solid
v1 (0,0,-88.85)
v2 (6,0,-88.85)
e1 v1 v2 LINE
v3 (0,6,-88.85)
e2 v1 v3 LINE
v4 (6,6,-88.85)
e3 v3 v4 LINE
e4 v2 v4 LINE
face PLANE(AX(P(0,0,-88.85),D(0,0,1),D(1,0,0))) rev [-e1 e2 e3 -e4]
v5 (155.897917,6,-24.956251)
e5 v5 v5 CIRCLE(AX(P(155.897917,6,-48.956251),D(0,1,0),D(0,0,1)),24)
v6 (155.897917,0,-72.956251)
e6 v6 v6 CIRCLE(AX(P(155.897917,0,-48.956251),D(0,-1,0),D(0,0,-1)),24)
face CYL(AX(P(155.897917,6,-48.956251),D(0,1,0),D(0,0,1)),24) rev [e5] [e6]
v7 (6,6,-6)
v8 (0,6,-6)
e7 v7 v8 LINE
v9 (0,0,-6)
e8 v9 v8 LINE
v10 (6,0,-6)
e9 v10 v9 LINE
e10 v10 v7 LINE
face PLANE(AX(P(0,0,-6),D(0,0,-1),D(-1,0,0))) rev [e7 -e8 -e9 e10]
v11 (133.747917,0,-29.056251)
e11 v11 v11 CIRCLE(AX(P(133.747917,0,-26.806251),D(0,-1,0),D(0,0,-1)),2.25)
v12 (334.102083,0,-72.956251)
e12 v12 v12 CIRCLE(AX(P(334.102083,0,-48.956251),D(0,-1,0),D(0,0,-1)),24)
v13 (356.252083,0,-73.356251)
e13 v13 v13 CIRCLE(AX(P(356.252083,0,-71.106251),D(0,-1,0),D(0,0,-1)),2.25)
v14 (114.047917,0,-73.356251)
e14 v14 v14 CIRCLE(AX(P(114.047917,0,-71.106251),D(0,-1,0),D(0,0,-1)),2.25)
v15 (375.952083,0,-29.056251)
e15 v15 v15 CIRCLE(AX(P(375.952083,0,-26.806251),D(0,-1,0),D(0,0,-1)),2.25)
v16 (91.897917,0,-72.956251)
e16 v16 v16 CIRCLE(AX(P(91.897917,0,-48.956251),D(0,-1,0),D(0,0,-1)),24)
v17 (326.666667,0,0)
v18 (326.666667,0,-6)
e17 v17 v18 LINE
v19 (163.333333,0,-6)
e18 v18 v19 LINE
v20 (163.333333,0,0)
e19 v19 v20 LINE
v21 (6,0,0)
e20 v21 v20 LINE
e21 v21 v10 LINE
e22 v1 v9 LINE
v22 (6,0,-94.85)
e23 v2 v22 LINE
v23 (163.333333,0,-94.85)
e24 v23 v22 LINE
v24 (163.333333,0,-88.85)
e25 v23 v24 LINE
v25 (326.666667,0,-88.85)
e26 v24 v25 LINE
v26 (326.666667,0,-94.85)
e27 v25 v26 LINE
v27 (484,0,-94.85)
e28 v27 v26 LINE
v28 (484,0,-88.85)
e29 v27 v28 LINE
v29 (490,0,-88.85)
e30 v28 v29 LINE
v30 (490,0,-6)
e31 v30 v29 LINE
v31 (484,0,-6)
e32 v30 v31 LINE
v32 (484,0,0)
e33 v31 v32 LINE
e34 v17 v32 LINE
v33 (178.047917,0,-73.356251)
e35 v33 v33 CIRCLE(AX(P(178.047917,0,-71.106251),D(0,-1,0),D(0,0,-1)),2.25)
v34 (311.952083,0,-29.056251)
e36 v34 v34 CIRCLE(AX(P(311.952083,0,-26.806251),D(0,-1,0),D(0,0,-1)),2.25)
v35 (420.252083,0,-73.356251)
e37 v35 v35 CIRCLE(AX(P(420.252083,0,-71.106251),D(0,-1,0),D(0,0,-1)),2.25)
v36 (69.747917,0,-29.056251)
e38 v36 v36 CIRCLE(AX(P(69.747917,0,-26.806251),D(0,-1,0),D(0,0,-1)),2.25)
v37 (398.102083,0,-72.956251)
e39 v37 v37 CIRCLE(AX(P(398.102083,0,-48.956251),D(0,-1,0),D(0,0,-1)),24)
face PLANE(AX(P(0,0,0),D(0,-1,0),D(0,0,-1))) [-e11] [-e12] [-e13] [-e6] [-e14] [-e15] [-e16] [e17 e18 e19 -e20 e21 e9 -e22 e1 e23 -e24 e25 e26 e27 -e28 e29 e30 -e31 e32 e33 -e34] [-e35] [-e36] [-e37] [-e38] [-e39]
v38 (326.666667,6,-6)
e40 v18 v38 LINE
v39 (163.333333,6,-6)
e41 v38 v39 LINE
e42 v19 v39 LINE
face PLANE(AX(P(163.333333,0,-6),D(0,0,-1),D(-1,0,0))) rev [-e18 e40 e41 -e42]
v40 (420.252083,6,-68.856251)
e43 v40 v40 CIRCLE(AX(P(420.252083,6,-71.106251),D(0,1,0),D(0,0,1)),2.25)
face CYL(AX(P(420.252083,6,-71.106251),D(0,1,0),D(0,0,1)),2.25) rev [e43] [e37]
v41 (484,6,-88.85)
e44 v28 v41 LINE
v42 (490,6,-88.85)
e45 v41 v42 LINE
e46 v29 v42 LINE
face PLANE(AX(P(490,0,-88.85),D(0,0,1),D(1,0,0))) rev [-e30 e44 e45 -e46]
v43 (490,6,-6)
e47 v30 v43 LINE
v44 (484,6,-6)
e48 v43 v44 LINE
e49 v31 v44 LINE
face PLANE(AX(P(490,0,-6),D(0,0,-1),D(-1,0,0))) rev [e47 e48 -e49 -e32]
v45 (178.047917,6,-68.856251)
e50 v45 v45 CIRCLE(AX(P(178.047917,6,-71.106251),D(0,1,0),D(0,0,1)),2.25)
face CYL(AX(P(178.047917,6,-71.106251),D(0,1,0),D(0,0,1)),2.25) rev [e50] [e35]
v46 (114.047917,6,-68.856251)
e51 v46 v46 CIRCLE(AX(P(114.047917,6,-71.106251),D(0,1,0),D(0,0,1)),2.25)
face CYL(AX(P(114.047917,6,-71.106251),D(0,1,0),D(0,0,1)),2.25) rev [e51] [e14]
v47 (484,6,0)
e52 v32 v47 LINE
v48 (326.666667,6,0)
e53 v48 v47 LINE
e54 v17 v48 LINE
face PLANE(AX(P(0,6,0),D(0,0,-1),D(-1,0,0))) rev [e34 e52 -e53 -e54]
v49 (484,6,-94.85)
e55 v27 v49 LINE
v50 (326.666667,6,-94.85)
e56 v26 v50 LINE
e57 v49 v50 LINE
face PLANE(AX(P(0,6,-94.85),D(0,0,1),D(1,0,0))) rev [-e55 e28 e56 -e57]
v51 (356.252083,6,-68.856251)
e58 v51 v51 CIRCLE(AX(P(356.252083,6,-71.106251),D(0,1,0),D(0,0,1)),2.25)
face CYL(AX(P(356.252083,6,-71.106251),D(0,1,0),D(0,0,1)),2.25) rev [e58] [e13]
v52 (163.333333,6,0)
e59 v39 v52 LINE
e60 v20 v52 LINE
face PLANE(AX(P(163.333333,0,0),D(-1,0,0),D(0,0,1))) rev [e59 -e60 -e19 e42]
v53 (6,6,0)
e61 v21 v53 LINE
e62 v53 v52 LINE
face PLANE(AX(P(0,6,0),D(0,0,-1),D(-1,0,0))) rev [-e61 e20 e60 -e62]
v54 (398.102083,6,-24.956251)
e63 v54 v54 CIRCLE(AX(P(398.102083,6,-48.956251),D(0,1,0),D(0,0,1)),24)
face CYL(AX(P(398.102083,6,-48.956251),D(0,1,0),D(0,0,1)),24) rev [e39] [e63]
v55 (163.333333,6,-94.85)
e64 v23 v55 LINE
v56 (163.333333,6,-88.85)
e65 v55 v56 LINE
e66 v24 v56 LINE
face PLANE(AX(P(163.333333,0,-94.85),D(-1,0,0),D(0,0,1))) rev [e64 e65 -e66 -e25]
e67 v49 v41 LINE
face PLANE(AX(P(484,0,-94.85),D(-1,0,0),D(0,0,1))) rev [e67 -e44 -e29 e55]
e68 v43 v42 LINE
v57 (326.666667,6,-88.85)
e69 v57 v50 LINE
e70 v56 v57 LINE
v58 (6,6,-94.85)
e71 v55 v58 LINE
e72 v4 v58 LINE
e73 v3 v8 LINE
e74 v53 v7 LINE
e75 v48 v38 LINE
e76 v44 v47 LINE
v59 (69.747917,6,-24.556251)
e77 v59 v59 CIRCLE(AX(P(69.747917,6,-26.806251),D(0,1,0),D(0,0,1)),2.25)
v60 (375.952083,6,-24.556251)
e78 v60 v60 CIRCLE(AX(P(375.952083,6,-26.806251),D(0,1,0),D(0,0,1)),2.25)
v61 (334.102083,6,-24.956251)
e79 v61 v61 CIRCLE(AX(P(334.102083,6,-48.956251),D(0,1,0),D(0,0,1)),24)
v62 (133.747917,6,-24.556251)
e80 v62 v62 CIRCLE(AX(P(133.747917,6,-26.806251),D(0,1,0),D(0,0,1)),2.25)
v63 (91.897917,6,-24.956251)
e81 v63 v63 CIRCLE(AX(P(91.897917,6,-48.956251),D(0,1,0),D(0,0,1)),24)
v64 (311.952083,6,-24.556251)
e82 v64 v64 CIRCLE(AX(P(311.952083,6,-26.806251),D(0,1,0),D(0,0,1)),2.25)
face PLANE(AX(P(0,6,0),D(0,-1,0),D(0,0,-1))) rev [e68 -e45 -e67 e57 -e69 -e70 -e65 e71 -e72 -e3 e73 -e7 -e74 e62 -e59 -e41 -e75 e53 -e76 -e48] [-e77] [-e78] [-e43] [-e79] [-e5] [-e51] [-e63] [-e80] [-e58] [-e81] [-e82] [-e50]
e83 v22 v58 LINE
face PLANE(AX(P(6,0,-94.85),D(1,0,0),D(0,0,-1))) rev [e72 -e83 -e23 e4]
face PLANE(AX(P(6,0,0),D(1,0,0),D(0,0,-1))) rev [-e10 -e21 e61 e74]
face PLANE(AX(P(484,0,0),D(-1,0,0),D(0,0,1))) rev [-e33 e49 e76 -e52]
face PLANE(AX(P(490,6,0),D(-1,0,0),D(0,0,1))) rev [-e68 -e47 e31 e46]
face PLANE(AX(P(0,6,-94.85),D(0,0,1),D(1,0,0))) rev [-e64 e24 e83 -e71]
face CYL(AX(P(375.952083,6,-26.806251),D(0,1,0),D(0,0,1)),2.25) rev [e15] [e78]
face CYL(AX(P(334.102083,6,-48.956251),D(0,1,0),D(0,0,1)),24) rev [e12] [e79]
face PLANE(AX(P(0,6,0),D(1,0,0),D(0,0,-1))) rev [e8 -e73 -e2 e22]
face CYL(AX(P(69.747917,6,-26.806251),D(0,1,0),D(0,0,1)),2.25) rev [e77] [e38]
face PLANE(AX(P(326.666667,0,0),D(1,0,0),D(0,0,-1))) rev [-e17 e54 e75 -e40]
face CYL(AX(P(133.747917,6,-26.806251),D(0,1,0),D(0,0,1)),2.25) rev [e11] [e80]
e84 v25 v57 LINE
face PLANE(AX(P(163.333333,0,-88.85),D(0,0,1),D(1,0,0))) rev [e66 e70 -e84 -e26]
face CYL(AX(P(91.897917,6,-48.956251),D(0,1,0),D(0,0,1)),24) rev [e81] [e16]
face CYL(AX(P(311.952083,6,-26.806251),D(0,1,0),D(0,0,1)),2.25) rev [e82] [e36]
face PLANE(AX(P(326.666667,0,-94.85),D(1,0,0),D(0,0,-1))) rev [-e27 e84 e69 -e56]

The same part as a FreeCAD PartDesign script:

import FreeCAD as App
import Part
import Sketcher
Q = App.Units.Quantity


def add_polygon(sketch, points):
    """Adds a closed chain of lines whose ends are joined by coincident constraints."""
    first, n = sketch.GeometryCount, len(points)
    for a, b in zip(points, points[1:] + points[:1]):
        sketch.addGeometry(Part.LineSegment(App.Vector(*a, 0), App.Vector(*b, 0)), False)
    for i in range(n):
        sketch.addConstraint(Sketcher.Constraint("Coincident", first + i, 2, first + (i + 1) % n, 1))

doc = App.newDocument("Part")
body = doc.addObject("PartDesign::Body", "Body")

# Sketch on XZ plane
sketch1 = body.newObject("Sketcher::SketchObject", "Sketch")
sketch1.AttachmentSupport = (doc.getObject("XZ_Plane"), [""])
sketch1.MapMode = "FlatFace"
add_polygon(sketch1, [(0, -94.85), (0, 0), (490, 0), (490, -94.85)])  # lines 0-3
sketch1.addConstraint(Sketcher.Constraint("Vertical", 0))
sketch1.addConstraint(Sketcher.Constraint("Horizontal", 1))
sketch1.addConstraint(Sketcher.Constraint("Vertical", 2))
sketch1.addConstraint(Sketcher.Constraint("Horizontal", 3))
sketch1.addConstraint(Sketcher.Constraint("Coincident", 0, 2, -1, 1))
sketch1.addConstraint(Sketcher.Constraint("DistanceX", 1, 1, 1, 2, Q("490 mm")))
sketch1.addConstraint(Sketcher.Constraint("DistanceY", 0, 1, 0, 2, Q("94.85 mm")))
pad1 = body.newObject("PartDesign::Pad", "Pad")
pad1.Profile = sketch1
pad1.Length = 6
pad1.Reversed = True

# Sketch on XZ plane
sketch2 = body.newObject("Sketcher::SketchObject", "Sketch001")
sketch2.AttachmentSupport = (doc.getObject("XZ_Plane"), [""])
sketch2.MapMode = "FlatFace"
sketch2.AttachmentOffset = App.Placement(App.Vector(0, 0, -6), App.Rotation())
add_polygon(sketch2, [(484, -6), (484, 0), (490, 0), (490, -6)])  # lines 0-3
add_polygon(sketch2, [(484, -94.85), (484, -88.85), (490, -88.85), (490, -94.85)])  # lines 4-7
add_polygon(sketch2, [(0, -94.85), (0, -88.85), (6, -88.85), (6, -94.85)])  # lines 8-11
add_polygon(sketch2, [(0, -6), (0, 0), (6, 0), (6, -6)])  # lines 12-15
sketch2.addConstraint(Sketcher.Constraint("Vertical", 0))
sketch2.addConstraint(Sketcher.Constraint("Horizontal", 1))
sketch2.addConstraint(Sketcher.Constraint("Vertical", 2))
sketch2.addConstraint(Sketcher.Constraint("Horizontal", 3))
sketch2.addConstraint(Sketcher.Constraint("Vertical", 4))
sketch2.addConstraint(Sketcher.Constraint("Horizontal", 5))
sketch2.addConstraint(Sketcher.Constraint("Vertical", 6))
sketch2.addConstraint(Sketcher.Constraint("Horizontal", 7))
sketch2.addConstraint(Sketcher.Constraint("Vertical", 8))
sketch2.addConstraint(Sketcher.Constraint("Horizontal", 9))
sketch2.addConstraint(Sketcher.Constraint("Vertical", 10))
sketch2.addConstraint(Sketcher.Constraint("Horizontal", 11))
sketch2.addConstraint(Sketcher.Constraint("Vertical", 12))
sketch2.addConstraint(Sketcher.Constraint("Horizontal", 13))
sketch2.addConstraint(Sketcher.Constraint("Vertical", 14))
sketch2.addConstraint(Sketcher.Constraint("Horizontal", 15))
sketch2.addConstraint(Sketcher.Constraint("Coincident", 12, 2, -1, 1))
sketch2.addConstraint(Sketcher.Constraint("PointOnObject", 0, 2, -1))
sketch2.addConstraint(Sketcher.Constraint("PointOnObject", 8, 2, -2))
sketch2.addConstraint(Sketcher.Constraint("Horizontal", 5, 2, 8, 2))
sketch2.addConstraint(Sketcher.Constraint("Horizontal", 7, 2, 10, 2))
sketch2.addConstraint(Sketcher.Constraint("Horizontal", 3, 2, 14, 2))
sketch2.addConstraint(Sketcher.Constraint("Vertical", 3, 2, 4, 2))
sketch2.addConstraint(Sketcher.Constraint("Vertical", 2, 2, 5, 2))
sketch2.addConstraint(Sketcher.Constraint("Vertical", 10, 2, 13, 2))
sketch2.addConstraint(Sketcher.Constraint("Equal", 7, 9))
sketch2.addConstraint(Sketcher.Constraint("Equal", 15, 0))
sketch2.addConstraint(Sketcher.Constraint("Equal", 2, 4))
sketch2.addConstraint(Sketcher.Constraint("DistanceX", 1, 1, 1, 2, Q("6 mm")))
sketch2.addConstraint(Sketcher.Constraint("DistanceX", -1, 1, 0, 2, Q("484 mm")))
sketch2.addConstraint(Sketcher.Constraint("DistanceY", 4, 2, -1, 1, Q("88.85 mm")))
pocket1 = body.newObject("PartDesign::Pocket", "Pocket")
pocket1.Profile = sketch2
pocket1.Type = "ThroughAll"
pocket1.Reversed = True

# Sketch on XZ plane
sketch3 = body.newObject("Sketcher::SketchObject", "Sketch002")
sketch3.AttachmentSupport = (doc.getObject("XZ_Plane"), [""])
sketch3.MapMode = "FlatFace"
sketch3.AttachmentOffset = App.Placement(App.Vector(0, 0, -6), App.Rotation())
add_polygon(sketch3, [(163.333333, -94.85), (163.333333, -88.85), (326.666667, -88.85), (326.666667, -94.85)])  # lines 0-3
add_polygon(sketch3, [(163.333333, -6), (163.333333, 0), (326.666667, 0), (326.666667, -6)])  # lines 4-7
sketch3.addConstraint(Sketcher.Constraint("Vertical", 0))
sketch3.addConstraint(Sketcher.Constraint("Horizontal", 1))
sketch3.addConstraint(Sketcher.Constraint("Vertical", 2))
sketch3.addConstraint(Sketcher.Constraint("Horizontal", 3))
sketch3.addConstraint(Sketcher.Constraint("Vertical", 4))
sketch3.addConstraint(Sketcher.Constraint("Horizontal", 5))
sketch3.addConstraint(Sketcher.Constraint("Vertical", 6))
sketch3.addConstraint(Sketcher.Constraint("Horizontal", 7))
sketch3.addConstraint(Sketcher.Constraint("PointOnObject", 4, 2, -1))
sketch3.addConstraint(Sketcher.Constraint("Vertical", 3, 2, 4, 2))
sketch3.addConstraint(Sketcher.Constraint("Vertical", 2, 2, 5, 2))
sketch3.addConstraint(Sketcher.Constraint("Equal", 2, 4))
sketch3.addConstraint(Sketcher.Constraint("DistanceY", 0, 1, 0, 2, Q("6 mm")))
sketch3.addConstraint(Sketcher.Constraint("DistanceY", 0, 2, -1, 1, Q("88.85 mm")))
sketch3.addConstraint(Sketcher.Constraint("DistanceX", 1, 1, 1, 2, Q("163.333333 mm")))
sketch3.addConstraint(Sketcher.Constraint("DistanceX", -1, 1, 0, 2, Q("163.333333 mm")))
pocket2 = body.newObject("PartDesign::Pocket", "Pocket001")
pocket2.Profile = sketch3
pocket2.Type = "ThroughAll"
pocket2.Reversed = True

# Sketch on XZ plane
sketch4 = body.newObject("Sketcher::SketchObject", "Sketch003")
sketch4.AttachmentSupport = (doc.getObject("XZ_Plane"), [""])
sketch4.MapMode = "FlatFace"
sketch4.AttachmentOffset = App.Placement(App.Vector(0, 0, -6), App.Rotation())
sketch4.addGeometry(Part.Circle(App.Vector(375.952083, -26.806251, 0), App.Vector(0, 0, 1), 2.25), False)
sketch4.addGeometry(Part.Circle(App.Vector(420.252083, -71.106251, 0), App.Vector(0, 0, 1), 2.25), False)
sketch4.addGeometry(Part.Circle(App.Vector(356.252083, -71.106251, 0), App.Vector(0, 0, 1), 2.25), False)
sketch4.addGeometry(Part.Circle(App.Vector(311.952083, -26.806251, 0), App.Vector(0, 0, 1), 2.25), False)
sketch4.addGeometry(Part.Circle(App.Vector(178.047917, -71.106251, 0), App.Vector(0, 0, 1), 2.25), False)
sketch4.addGeometry(Part.Circle(App.Vector(133.747917, -26.806251, 0), App.Vector(0, 0, 1), 2.25), False)
sketch4.addGeometry(Part.Circle(App.Vector(114.047917, -71.106251, 0), App.Vector(0, 0, 1), 2.25), False)
sketch4.addGeometry(Part.Circle(App.Vector(69.747917, -26.806251, 0), App.Vector(0, 0, 1), 2.25), False)
sketch4.addConstraint(Sketcher.Constraint("Equal", 0, 1))
sketch4.addConstraint(Sketcher.Constraint("Equal", 1, 2))
sketch4.addConstraint(Sketcher.Constraint("Equal", 2, 3))
sketch4.addConstraint(Sketcher.Constraint("Equal", 3, 4))
sketch4.addConstraint(Sketcher.Constraint("Equal", 4, 5))
sketch4.addConstraint(Sketcher.Constraint("Equal", 5, 6))
sketch4.addConstraint(Sketcher.Constraint("Equal", 6, 7))
sketch4.addConstraint(Sketcher.Constraint("Horizontal", 1, 3, 2, 3))
sketch4.addConstraint(Sketcher.Constraint("Horizontal", 0, 3, 3, 3))
sketch4.addConstraint(Sketcher.Constraint("Horizontal", 2, 3, 4, 3))
sketch4.addConstraint(Sketcher.Constraint("Horizontal", 3, 3, 5, 3))
sketch4.addConstraint(Sketcher.Constraint("Horizontal", 4, 3, 6, 3))
sketch4.addConstraint(Sketcher.Constraint("Horizontal", 5, 3, 7, 3))
sketch4.addConstraint(Sketcher.Constraint("Diameter", 0, Q("4.5 mm")))
sketch4.addConstraint(Sketcher.Constraint("DistanceX", 2, 3, 1, 3, Q("64 mm")))
sketch4.addConstraint(Sketcher.Constraint("DistanceX", 3, 3, 0, 3, Q("64 mm")))
sketch4.addConstraint(Sketcher.Constraint("DistanceX", 6, 3, 4, 3, Q("64 mm")))
sketch4.addConstraint(Sketcher.Constraint("DistanceX", 7, 3, 5, 3, Q("64 mm")))
sketch4.addConstraint(Sketcher.Constraint("DistanceX", 0, 3, 1, 3, Q("44.3 mm")))
sketch4.addConstraint(Sketcher.Constraint("DistanceY", 1, 3, 0, 3, Q("44.3 mm")))
sketch4.addConstraint(Sketcher.Constraint("DistanceX", 5, 3, 4, 3, Q("44.3 mm")))
sketch4.addConstraint(Sketcher.Constraint("DistanceY", 0, 3, -1, 1, Q("26.806251 mm")))
sketch4.addConstraint(Sketcher.Constraint("DistanceX", -1, 1, 0, 3, Q("375.952083 mm")))
sketch4.addConstraint(Sketcher.Constraint("DistanceX", -1, 1, 4, 3, Q("178.047917 mm")))
doc.recompute()
hole = body.newObject("PartDesign::Hole", "Hole")
hole.Profile = sketch4
hole.ThreadType = "None"
hole.Diameter = 4.5
hole.DepthType = "Dimension"
hole.Depth = 18
hole.DrillPoint = "Angled"
hole.DrillPointAngle = 118
hole.Reversed = True

# Sketch on XZ plane
sketch5 = body.newObject("Sketcher::SketchObject", "Sketch004")
sketch5.AttachmentSupport = (doc.getObject("XZ_Plane"), [""])
sketch5.MapMode = "FlatFace"
sketch5.AttachmentOffset = App.Placement(App.Vector(0, 0, -6), App.Rotation())
sketch5.addGeometry(Part.Circle(App.Vector(91.897917, -48.956251, 0), App.Vector(0, 0, 1), 24), False)
sketch5.addGeometry(Part.Circle(App.Vector(155.897917, -48.956251, 0), App.Vector(0, 0, 1), 24), False)
sketch5.addGeometry(Part.Circle(App.Vector(334.102083, -48.956251, 0), App.Vector(0, 0, 1), 24), False)
sketch5.addGeometry(Part.Circle(App.Vector(398.102083, -48.956251, 0), App.Vector(0, 0, 1), 24), False)
sketch5.addConstraint(Sketcher.Constraint("Equal", 0, 1))
sketch5.addConstraint(Sketcher.Constraint("Equal", 1, 2))
sketch5.addConstraint(Sketcher.Constraint("Equal", 2, 3))
sketch5.addConstraint(Sketcher.Constraint("Horizontal", 0, 3, 1, 3))
sketch5.addConstraint(Sketcher.Constraint("Horizontal", 1, 3, 2, 3))
sketch5.addConstraint(Sketcher.Constraint("Horizontal", 2, 3, 3, 3))
sketch5.addConstraint(Sketcher.Constraint("Diameter", 0, Q("48 mm")))
sketch5.addConstraint(Sketcher.Constraint("DistanceX", 0, 3, 1, 3, Q("64 mm")))
sketch5.addConstraint(Sketcher.Constraint("DistanceX", 2, 3, 3, 3, Q("64 mm")))
sketch5.addConstraint(Sketcher.Constraint("DistanceY", 0, 3, -1, 1, Q("48.956251 mm")))
sketch5.addConstraint(Sketcher.Constraint("DistanceX", -1, 1, 0, 3, Q("91.897917 mm")))
sketch5.addConstraint(Sketcher.Constraint("DistanceX", -1, 1, 2, 3, Q("334.102083 mm")))
doc.recompute()
hole2 = body.newObject("PartDesign::Hole", "Hole001")
hole2.Profile = sketch5
hole2.ThreadType = "None"
hole2.Diameter = 48
hole2.DepthType = "Dimension"
hole2.Depth = 18
hole2.DrillPoint = "Angled"
hole2.DrillPointAngle = 118
hole2.Reversed = True

doc.recompute()
